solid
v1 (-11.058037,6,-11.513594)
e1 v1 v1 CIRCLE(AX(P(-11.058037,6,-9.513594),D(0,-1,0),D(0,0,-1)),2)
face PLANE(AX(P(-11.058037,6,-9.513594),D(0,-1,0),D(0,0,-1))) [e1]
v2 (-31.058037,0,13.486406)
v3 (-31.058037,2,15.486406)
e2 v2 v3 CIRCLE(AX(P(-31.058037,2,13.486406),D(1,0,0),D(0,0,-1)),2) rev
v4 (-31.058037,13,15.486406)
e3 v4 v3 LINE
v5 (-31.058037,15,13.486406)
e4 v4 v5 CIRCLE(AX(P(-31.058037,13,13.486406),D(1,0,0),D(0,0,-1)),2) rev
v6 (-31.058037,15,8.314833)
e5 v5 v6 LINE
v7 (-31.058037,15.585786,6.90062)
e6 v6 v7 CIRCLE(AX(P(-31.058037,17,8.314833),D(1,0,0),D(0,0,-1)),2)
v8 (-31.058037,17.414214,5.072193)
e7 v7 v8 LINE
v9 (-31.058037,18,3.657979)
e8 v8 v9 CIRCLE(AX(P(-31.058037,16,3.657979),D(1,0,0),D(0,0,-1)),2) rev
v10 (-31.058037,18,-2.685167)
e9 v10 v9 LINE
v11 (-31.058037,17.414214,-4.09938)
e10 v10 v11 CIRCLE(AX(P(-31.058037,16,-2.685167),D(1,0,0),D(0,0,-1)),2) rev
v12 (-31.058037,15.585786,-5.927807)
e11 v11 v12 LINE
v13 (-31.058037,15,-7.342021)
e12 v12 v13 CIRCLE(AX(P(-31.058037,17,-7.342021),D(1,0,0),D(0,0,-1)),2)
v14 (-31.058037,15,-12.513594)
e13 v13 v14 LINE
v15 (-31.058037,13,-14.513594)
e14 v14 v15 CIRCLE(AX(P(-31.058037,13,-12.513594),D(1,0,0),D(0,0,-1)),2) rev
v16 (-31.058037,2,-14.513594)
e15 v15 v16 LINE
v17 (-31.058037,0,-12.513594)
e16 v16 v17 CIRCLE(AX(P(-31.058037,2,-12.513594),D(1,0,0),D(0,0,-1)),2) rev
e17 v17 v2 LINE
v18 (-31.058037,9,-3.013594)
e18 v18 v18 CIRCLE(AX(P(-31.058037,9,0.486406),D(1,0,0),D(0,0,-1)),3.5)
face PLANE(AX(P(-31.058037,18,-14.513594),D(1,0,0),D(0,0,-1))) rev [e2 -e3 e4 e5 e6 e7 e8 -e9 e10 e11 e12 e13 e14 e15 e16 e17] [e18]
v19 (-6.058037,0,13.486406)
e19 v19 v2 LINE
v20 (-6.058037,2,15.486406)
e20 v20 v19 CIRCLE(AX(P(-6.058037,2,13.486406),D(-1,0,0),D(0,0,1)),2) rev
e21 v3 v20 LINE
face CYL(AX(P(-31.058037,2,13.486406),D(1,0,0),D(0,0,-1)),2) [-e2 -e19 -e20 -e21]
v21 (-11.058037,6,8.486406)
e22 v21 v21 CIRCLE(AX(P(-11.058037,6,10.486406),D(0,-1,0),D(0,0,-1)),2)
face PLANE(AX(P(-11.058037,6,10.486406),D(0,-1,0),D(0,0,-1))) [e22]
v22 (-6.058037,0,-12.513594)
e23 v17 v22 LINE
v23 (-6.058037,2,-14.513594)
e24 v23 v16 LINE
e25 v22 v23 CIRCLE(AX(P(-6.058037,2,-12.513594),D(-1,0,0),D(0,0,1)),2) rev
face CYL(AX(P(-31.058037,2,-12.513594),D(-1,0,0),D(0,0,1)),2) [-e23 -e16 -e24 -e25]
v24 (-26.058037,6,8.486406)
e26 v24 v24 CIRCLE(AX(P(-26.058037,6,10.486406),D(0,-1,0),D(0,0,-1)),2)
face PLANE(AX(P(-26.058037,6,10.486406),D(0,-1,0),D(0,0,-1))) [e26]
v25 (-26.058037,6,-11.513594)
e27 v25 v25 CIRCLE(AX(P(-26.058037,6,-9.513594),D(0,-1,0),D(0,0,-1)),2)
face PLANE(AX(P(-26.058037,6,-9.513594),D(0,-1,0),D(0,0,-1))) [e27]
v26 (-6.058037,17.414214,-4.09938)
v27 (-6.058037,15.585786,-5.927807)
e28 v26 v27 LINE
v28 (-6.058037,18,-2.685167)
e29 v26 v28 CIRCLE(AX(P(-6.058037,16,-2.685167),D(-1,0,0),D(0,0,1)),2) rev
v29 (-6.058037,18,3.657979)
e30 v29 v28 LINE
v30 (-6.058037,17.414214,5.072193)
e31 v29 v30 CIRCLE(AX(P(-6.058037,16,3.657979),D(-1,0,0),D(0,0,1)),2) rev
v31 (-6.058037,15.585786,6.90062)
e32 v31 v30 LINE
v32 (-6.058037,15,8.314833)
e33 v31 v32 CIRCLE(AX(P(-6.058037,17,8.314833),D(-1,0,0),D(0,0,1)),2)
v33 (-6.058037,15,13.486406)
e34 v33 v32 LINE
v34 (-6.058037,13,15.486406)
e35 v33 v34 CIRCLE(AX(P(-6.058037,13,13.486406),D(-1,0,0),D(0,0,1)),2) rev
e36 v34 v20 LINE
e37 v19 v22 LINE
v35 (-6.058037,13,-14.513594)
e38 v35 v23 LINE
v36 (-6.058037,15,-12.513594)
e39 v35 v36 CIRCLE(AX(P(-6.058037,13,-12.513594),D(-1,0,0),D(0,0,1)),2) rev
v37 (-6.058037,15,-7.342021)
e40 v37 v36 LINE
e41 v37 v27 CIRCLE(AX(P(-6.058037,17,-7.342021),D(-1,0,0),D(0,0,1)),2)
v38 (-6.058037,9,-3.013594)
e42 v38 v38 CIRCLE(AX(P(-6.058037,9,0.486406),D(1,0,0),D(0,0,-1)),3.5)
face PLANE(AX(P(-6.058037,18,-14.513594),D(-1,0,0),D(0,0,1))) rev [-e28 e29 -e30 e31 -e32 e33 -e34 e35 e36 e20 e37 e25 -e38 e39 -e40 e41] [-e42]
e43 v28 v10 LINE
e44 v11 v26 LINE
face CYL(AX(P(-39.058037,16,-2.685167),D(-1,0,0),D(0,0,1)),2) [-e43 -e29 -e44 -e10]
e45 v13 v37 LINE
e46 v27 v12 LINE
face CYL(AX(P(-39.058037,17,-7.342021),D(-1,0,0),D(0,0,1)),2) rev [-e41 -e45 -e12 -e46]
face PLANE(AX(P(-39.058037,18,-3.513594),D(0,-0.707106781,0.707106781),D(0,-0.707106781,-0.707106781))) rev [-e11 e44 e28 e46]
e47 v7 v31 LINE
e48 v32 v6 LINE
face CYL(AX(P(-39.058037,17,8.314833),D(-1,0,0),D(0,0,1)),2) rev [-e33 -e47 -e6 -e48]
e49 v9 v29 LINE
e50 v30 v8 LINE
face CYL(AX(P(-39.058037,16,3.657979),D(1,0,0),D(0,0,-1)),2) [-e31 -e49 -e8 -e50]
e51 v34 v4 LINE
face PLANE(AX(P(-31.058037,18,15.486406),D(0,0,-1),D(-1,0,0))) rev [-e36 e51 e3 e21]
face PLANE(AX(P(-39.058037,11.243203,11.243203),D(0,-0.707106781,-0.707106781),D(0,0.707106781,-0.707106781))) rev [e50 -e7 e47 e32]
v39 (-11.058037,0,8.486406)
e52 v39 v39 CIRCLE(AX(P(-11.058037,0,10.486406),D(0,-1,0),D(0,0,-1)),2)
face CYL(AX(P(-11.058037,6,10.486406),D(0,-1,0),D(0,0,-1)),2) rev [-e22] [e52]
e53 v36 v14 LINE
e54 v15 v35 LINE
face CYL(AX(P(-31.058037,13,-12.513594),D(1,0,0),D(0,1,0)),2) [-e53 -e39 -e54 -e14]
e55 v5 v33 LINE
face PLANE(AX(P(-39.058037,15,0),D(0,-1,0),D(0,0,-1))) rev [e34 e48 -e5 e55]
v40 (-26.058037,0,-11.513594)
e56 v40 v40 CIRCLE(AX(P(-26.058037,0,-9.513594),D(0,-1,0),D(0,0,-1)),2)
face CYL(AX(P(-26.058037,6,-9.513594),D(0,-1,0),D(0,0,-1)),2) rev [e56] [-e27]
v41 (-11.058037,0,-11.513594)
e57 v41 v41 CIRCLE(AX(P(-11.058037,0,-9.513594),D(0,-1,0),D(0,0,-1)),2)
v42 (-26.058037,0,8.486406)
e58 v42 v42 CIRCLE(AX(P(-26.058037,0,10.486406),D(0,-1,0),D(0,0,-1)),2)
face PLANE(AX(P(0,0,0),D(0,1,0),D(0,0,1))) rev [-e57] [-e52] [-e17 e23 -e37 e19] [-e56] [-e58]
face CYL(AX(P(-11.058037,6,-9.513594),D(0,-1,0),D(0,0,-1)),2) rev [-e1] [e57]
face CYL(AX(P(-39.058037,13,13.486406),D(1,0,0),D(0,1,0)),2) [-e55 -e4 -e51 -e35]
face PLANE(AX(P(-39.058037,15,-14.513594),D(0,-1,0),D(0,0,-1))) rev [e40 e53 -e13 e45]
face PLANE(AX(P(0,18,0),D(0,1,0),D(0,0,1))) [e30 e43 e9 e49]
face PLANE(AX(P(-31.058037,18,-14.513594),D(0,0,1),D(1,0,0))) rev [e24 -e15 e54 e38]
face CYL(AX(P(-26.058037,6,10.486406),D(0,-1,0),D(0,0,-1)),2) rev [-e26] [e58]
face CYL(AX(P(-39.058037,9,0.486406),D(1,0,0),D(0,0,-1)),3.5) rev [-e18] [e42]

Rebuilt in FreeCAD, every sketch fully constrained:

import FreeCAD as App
import Part
import Sketcher

V = App.Vector


def edges_at(feature, points):
    """Names of the edges that pass closest to the given points."""
    edges = feature.Shape.Edges
    near = lambda p: min(range(len(edges)), key=lambda i: edges[i].distToShape(Part.Vertex(*p))[0])
    return sorted({f"Edge{near(p) + 1}" for p in points})

doc = App.newDocument("Part")
body = doc.addObject("PartDesign::Body", "Body")

sketch1 = body.newObject("Sketcher::SketchObject", "Sketch")
sketch1.AttachmentSupport = (doc.getObject("XZ_Plane"), [""])
sketch1.MapMode = "FlatFace"
sketch1.addGeometry([
    Part.LineSegment(V(-31.058037, -14.513594, 0), V(-31.058037, 15.486406, 0)),
    Part.LineSegment(V(-31.058037, 15.486406, 0), V(-6.058037, 15.486406, 0)),
    Part.LineSegment(V(-6.058037, 15.486406, 0), V(-6.058037, -14.513594, 0)),
    Part.LineSegment(V(-6.058037, -14.513594, 0), V(-31.058037, -14.513594, 0)),
], False)
sketch1.addConstraint([
    Sketcher.Constraint("Coincident", 0, 2, 1, 1),
    Sketcher.Constraint("Coincident", 1, 2, 2, 1),
    Sketcher.Constraint("Coincident", 2, 2, 3, 1),
    Sketcher.Constraint("Coincident", 3, 2, 0, 1),
    Sketcher.Constraint("Vertical", 0),
    Sketcher.Constraint("Horizontal", 1),
    Sketcher.Constraint("Vertical", 2),
    Sketcher.Constraint("Horizontal", 3),
    Sketcher.Constraint("DistanceX", 1, 1, 1, 2, 25.0),
    Sketcher.Constraint("DistanceY", 0, 1, 0, 2, 30.0),
    Sketcher.Constraint("DistanceX", 0, 2, -1, 1, 31.058037),
    Sketcher.Constraint("DistanceY", -1, 1, 0, 2, 15.486406),
])
pad1 = body.newObject("PartDesign::Pad", "Pad")
pad1.Profile = sketch1
pad1.Length = 18
pad1.Reversed = True

sketch2 = body.newObject("Sketcher::SketchObject", "Sketch001")
sketch2.AttachmentSupport = (doc.getObject("YZ_Plane"), [""])
sketch2.MapMode = "FlatFace"
sketch2.AttachmentOffset = App.Placement(V(0, 0, -6.058037), App.Rotation())
sketch2.addGeometry([
    Part.LineSegment(V(15, 15.486406, 0), V(15, 7.486406, 0)),
    Part.LineSegment(V(15, 7.486406, 0), V(18, 4.486406, 0)),
    Part.LineSegment(V(18, 4.486406, 0), V(18, 15.486406, 0)),
    Part.LineSegment(V(18, 15.486406, 0), V(15, 15.486406, 0)),
], False)
sketch2.addConstraint([
    Sketcher.Constraint("Coincident", 0, 2, 1, 1),
    Sketcher.Constraint("Coincident", 1, 2, 2, 1),
    Sketcher.Constraint("Coincident", 2, 2, 3, 1),
    Sketcher.Constraint("Coincident", 3, 2, 0, 1),
    Sketcher.Constraint("Vertical", 0),
    Sketcher.Constraint("Vertical", 2),
    Sketcher.Constraint("Horizontal", 3),
    Sketcher.Constraint("DistanceX", 3, 2, 3, 1, 3.0),
    Sketcher.Constraint("DistanceY", 0, 2, 0, 1, 8.0),
    Sketcher.Constraint("DistanceY", 2, 1, 2, 2, 11.0),
    Sketcher.Constraint("DistanceX", -1, 1, 0, 2, 15.0),
    Sketcher.Constraint("DistanceY", -1, 1, 0, 2, 7.486406),
])
pocket1 = body.newObject("PartDesign::Pocket", "Pocket")
pocket1.Profile = sketch2
pocket1.Length = 33

sketch3 = body.newObject("Sketcher::SketchObject", "Sketch002")
sketch3.AttachmentSupport = (doc.getObject("YZ_Plane"), [""])
sketch3.MapMode = "FlatFace"
sketch3.AttachmentOffset = App.Placement(V(0, 0, -6.058037), App.Rotation())
sketch3.addGeometry([
    Part.LineSegment(V(15, -14.513594, 0), V(18, -14.513594, 0)),
    Part.LineSegment(V(18, -14.513594, 0), V(18, -3.513594, 0)),
    Part.LineSegment(V(18, -3.513594, 0), V(15, -6.513594, 0)),
    Part.LineSegment(V(15, -6.513594, 0), V(15, -14.513594, 0)),
], False)
sketch3.addConstraint([
    Sketcher.Constraint("Coincident", 0, 2, 1, 1),
    Sketcher.Constraint("Coincident", 1, 2, 2, 1),
    Sketcher.Constraint("Coincident", 2, 2, 3, 1),
    Sketcher.Constraint("Coincident", 3, 2, 0, 1),
    Sketcher.Constraint("Horizontal", 0),
    Sketcher.Constraint("Vertical", 1),
    Sketcher.Constraint("Vertical", 3),
    Sketcher.Constraint("DistanceX", 0, 1, 0, 2, 3.0),
    Sketcher.Constraint("DistanceY", 1, 1, 1, 2, 11.0),
    Sketcher.Constraint("DistanceY", 3, 2, 3, 1, 8.0),
    Sketcher.Constraint("DistanceX", -1, 1, 0, 2, 18.0),
    Sketcher.Constraint("DistanceY", 0, 2, -1, 1, 14.513594),
])
pocket2 = body.newObject("PartDesign::Pocket", "Pocket001")
pocket2.Profile = sketch3
pocket2.Length = 33

sketch4 = body.newObject("Sketcher::SketchObject", "Sketch003")
sketch4.AttachmentSupport = (doc.getObject("YZ_Plane"), [""])
sketch4.MapMode = "FlatFace"
sketch4.AttachmentOffset = App.Placement(V(0, 0, -6.058037), App.Rotation())
sketch4.addGeometry(Part.Circle(V(9, 0.486406, 0), V(0, 0, 1), 3.5), False)
sketch4.addConstraint([
    Sketcher.Constraint("Diameter", 0, 7.0),
    Sketcher.Constraint("DistanceX", -1, 1, 0, 3, 9.0),
    Sketcher.Constraint("DistanceY", -1, 1, 0, 3, 0.486406),
])
pocket3 = body.newObject("PartDesign::Pocket", "Pocket002")
pocket3.Profile = sketch4
pocket3.Length = 33

sketch5 = body.newObject("Sketcher::SketchObject", "Sketch004")
sketch5.AttachmentSupport = (doc.getObject("XZ_Plane"), [""])
sketch5.MapMode = "FlatFace"
sketch5.addGeometry([
    Part.Circle(V(-11.058037, 10.486406, 0), V(0, 0, 1), 2),
    Part.Circle(V(-11.058037, -9.513594, 0), V(0, 0, 1), 2),
    Part.Circle(V(-26.058037, 10.486406, 0), V(0, 0, 1), 2),
    Part.Circle(V(-26.058037, -9.513594, 0), V(0, 0, 1), 2),
], False)
sketch5.addConstraint([
    Sketcher.Constraint("Equal", 0, 1),
    Sketcher.Constraint("Equal", 1, 2),
    Sketcher.Constraint("Equal", 2, 3),
    Sketcher.Constraint("Horizontal", 0, 3, 2, 3),
    Sketcher.Constraint("Horizontal", 1, 3, 3, 3),
    Sketcher.Constraint("Vertical", 0, 3, 1, 3),
    Sketcher.Constraint("Vertical", 2, 3, 3, 3),
    Sketcher.Constraint("Diameter", 0, 4.0),
    Sketcher.Constraint("DistanceY", 1, 3, 0, 3, 20.0),
    Sketcher.Constraint("DistanceX", 2, 3, 0, 3, 15.0),
    Sketcher.Constraint("DistanceX", 0, 3, -1, 1, 11.058037),
    Sketcher.Constraint("DistanceY", -1, 1, 0, 3, 10.486406),
])
pocket4 = body.newObject("PartDesign::Pocket", "Pocket003")
pocket4.Profile = sketch5
pocket4.Length = 6
doc.recompute()

fillet = body.newObject("PartDesign::Fillet", "Fillet")
fillet.Base = (pocket4, edges_at(pocket4, [
    (-18.558, 18, 4.486),
    (-18.558, 15, 7.486),
    (-18.558, 15, 15.486),
    (-18.558, 18, -3.514),
    (-18.558, 15, -14.514),
    (-18.558, 15, -6.514),
    (-18.558, 0, -14.514),
    (-18.558, 0, 15.486),
]))
fillet.Radius = 2

doc.recompute()
